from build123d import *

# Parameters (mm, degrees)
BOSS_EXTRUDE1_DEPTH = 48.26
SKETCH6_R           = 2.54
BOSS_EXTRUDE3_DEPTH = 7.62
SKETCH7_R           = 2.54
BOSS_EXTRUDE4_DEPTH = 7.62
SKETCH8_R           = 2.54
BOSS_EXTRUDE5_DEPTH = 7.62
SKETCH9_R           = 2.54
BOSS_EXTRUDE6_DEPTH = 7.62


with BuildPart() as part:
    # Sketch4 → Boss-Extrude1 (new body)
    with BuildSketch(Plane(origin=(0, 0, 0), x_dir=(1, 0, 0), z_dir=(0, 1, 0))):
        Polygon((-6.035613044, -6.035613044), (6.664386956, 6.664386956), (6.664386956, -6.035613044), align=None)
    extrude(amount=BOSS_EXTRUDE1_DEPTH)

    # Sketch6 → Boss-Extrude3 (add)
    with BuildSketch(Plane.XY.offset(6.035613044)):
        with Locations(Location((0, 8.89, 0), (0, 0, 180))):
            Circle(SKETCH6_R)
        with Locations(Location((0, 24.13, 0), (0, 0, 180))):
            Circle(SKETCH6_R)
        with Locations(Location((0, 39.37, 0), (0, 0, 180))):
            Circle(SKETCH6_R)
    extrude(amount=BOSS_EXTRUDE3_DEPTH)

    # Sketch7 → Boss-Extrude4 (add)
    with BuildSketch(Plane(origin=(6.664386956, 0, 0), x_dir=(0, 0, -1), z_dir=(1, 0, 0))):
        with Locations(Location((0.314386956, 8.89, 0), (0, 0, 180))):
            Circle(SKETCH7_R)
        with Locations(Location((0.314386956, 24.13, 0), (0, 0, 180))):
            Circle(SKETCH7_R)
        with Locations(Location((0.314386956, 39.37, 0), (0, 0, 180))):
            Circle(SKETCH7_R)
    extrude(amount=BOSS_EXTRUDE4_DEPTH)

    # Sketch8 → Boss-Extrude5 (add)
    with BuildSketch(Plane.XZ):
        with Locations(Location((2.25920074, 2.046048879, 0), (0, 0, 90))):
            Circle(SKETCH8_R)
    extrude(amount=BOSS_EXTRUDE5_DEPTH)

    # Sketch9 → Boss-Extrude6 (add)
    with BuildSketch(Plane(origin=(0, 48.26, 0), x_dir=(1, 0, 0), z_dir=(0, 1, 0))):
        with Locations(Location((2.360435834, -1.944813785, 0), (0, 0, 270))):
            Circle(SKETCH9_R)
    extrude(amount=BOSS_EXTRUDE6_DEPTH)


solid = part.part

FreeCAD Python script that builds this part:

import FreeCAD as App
import Part
import Sketcher

V = App.Vector
Q = App.Units.Quantity


def add_polygon(sketch, points):
    """Adds a closed chain of lines whose ends are joined by coincident constraints."""
    first, n = sketch.GeometryCount, len(points)
    for a, b in zip(points, points[1:] + points[:1]):
        sketch.addGeometry(Part.LineSegment(App.Vector(*a, 0), App.Vector(*b, 0)), False)
    for i in range(n):
        sketch.addConstraint(Sketcher.Constraint("Coincident", first + i, 2, first + (i + 1) % n, 1))

doc = App.newDocument("Part")
body = doc.addObject("PartDesign::Body", "Body")

# Sketch on XZ plane
sketch1 = doc.addObject("Sketcher::SketchObject", "Sketch")
body.addObject(sketch1)
sketch1.AttachmentSupport = (doc.XZ_Plane, [""])
sketch1.MapMode = "FlatFace"
add_polygon(sketch1, [(6.664387, -6.664387), (-6.035613, 6.035613), (6.664387, 6.035613)])  # lines 0-2
sketch1.addConstraint([
    Sketcher.Constraint("Horizontal", 1),
    Sketcher.Constraint("Vertical", 2),
    Sketcher.Constraint("Equal", 1, 2),
    Sketcher.Constraint("DistanceX", 1, 1, 1, 2, Q("0.5 in")),
    Sketcher.Constraint("DistanceX", 0, 2, -1, 1, 6.035613),
    Sketcher.Constraint("DistanceY", -1, 1, 0, 2, 6.035613),
])
pad1 = doc.addObject("PartDesign::Pad", "Pad")
body.addObject(pad1)
pad1.Profile = sketch1
pad1.Length = Q("1.9 in")
pad1.Reversed = True

# Sketch on XY plane
sketch2 = doc.addObject("Sketcher::SketchObject", "Sketch001")
body.addObject(sketch2)
sketch2.AttachmentSupport = (doc.XY_Plane, [""])
sketch2.MapMode = "FlatFace"
sketch2.AttachmentOffset = App.Placement(V(0, 0, 6.035613), App.Rotation())
sketch2.addGeometry([
    Part.Circle(V(0, 8.89, 0), V(0, 0, 1), 2.54),
    Part.Circle(V(0, 24.13, 0), V(0, 0, 1), 2.54),
    Part.Circle(V(0, 39.37, 0), V(0, 0, 1), 2.54),
], False)
sketch2.addConstraint([
    Sketcher.Constraint("Equal", 0, 1),
    Sketcher.Constraint("Equal", 1, 2),
    Sketcher.Constraint("PointOnObject", 0, 3, -2),
    Sketcher.Constraint("PointOnObject", 1, 3, -2),
    Sketcher.Constraint("PointOnObject", 2, 3, -2),
    Sketcher.Constraint("Diameter", 0, Q("0.2 in")),
    Sketcher.Constraint("DistanceY", 0, 3, 1, 3, Q("0.6 in")),
    Sketcher.Constraint("DistanceY", 1, 3, 2, 3, Q("0.6 in")),
    Sketcher.Constraint("DistanceY", -1, 1, 0, 3, Q("0.35 in")),
])
pad2 = doc.addObject("PartDesign::Pad", "Pad001")
body.addObject(pad2)
pad2.Profile = sketch2
pad2.Length = Q("0.3 in")

# Sketch on YZ plane
sketch3 = doc.addObject("Sketcher::SketchObject", "Sketch002")
body.addObject(sketch3)
sketch3.AttachmentSupport = (doc.YZ_Plane, [""])
sketch3.MapMode = "FlatFace"
sketch3.AttachmentOffset = App.Placement(V(0, 0, 6.664387), App.Rotation())
sketch3.addGeometry([
    Part.Circle(V(8.89, -0.314387, 0), V(0, 0, 1), 2.54),
    Part.Circle(V(24.13, -0.314387, 0), V(0, 0, 1), 2.54),
    Part.Circle(V(39.37, -0.314387, 0), V(0, 0, 1), 2.54),
], False)
sketch3.addConstraint([
    Sketcher.Constraint("Equal", 0, 1),
    Sketcher.Constraint("Equal", 1, 2),
    Sketcher.Constraint("Horizontal", 0, 3, 1, 3),
    Sketcher.Constraint("Horizontal", 1, 3, 2, 3),
    Sketcher.Constraint("Diameter", 0, Q("0.2 in")),
    Sketcher.Constraint("DistanceX", 0, 3, 1, 3, Q("0.6 in")),
    Sketcher.Constraint("DistanceX", 1, 3, 2, 3, Q("0.6 in")),
    Sketcher.Constraint("DistanceX", -1, 1, 0, 3, Q("0.35 in")),
    Sketcher.Constraint("DistanceY", 0, 3, -1, 1, 0.314387),
])
pad3 = doc.addObject("PartDesign::Pad", "Pad002")
body.addObject(pad3)
pad3.Profile = sketch3
pad3.Length = Q("0.3 in")

# Sketch on XZ plane
sketch4 = doc.addObject("Sketcher::SketchObject", "Sketch003")
body.addObject(sketch4)
sketch4.AttachmentSupport = (doc.XZ_Plane, [""])
sketch4.MapMode = "FlatFace"
sketch4.addGeometry(Part.Circle(V(2.259201, 2.046049, 0), V(0, 0, 1), 2.54), False)
sketch4.addConstraint([
    Sketcher.Constraint("Diameter", 0, Q("0.2 in")),
    Sketcher.Constraint("DistanceX", -1, 1, 0, 3, 2.259201),
    Sketcher.Constraint("DistanceY", -1, 1, 0, 3, 2.046049),
])
pad4 = doc.addObject("PartDesign::Pad", "Pad003")
body.addObject(pad4)
pad4.Profile = sketch4
pad4.Length = Q("0.3 in")

# Sketch on XZ plane
sketch5 = doc.addObject("Sketcher::SketchObject", "Sketch004")
body.addObject(sketch5)
sketch5.AttachmentSupport = (doc.XZ_Plane, [""])
sketch5.MapMode = "FlatFace"
sketch5.AttachmentOffset = App.Placement(V(0, 0, -1.9 * 25.4), App.Rotation())
sketch5.addGeometry(Part.Circle(V(2.360436, 1.944814, 0), V(0, 0, 1), 2.54), False)
sketch5.addConstraint([
    Sketcher.Constraint("Diameter", 0, Q("0.2 in")),
    Sketcher.Constraint("DistanceX", -1, 1, 0, 3, 2.360436),
    Sketcher.Constraint("DistanceY", -1, 1, 0, 3, 1.944814),
])
pad5 = doc.addObject("PartDesign::Pad", "Pad004")
body.addObject(pad5)
pad5.Profile = sketch5
pad5.Length = Q("0.3 in")
pad5.Reversed = True

doc.recompute()
